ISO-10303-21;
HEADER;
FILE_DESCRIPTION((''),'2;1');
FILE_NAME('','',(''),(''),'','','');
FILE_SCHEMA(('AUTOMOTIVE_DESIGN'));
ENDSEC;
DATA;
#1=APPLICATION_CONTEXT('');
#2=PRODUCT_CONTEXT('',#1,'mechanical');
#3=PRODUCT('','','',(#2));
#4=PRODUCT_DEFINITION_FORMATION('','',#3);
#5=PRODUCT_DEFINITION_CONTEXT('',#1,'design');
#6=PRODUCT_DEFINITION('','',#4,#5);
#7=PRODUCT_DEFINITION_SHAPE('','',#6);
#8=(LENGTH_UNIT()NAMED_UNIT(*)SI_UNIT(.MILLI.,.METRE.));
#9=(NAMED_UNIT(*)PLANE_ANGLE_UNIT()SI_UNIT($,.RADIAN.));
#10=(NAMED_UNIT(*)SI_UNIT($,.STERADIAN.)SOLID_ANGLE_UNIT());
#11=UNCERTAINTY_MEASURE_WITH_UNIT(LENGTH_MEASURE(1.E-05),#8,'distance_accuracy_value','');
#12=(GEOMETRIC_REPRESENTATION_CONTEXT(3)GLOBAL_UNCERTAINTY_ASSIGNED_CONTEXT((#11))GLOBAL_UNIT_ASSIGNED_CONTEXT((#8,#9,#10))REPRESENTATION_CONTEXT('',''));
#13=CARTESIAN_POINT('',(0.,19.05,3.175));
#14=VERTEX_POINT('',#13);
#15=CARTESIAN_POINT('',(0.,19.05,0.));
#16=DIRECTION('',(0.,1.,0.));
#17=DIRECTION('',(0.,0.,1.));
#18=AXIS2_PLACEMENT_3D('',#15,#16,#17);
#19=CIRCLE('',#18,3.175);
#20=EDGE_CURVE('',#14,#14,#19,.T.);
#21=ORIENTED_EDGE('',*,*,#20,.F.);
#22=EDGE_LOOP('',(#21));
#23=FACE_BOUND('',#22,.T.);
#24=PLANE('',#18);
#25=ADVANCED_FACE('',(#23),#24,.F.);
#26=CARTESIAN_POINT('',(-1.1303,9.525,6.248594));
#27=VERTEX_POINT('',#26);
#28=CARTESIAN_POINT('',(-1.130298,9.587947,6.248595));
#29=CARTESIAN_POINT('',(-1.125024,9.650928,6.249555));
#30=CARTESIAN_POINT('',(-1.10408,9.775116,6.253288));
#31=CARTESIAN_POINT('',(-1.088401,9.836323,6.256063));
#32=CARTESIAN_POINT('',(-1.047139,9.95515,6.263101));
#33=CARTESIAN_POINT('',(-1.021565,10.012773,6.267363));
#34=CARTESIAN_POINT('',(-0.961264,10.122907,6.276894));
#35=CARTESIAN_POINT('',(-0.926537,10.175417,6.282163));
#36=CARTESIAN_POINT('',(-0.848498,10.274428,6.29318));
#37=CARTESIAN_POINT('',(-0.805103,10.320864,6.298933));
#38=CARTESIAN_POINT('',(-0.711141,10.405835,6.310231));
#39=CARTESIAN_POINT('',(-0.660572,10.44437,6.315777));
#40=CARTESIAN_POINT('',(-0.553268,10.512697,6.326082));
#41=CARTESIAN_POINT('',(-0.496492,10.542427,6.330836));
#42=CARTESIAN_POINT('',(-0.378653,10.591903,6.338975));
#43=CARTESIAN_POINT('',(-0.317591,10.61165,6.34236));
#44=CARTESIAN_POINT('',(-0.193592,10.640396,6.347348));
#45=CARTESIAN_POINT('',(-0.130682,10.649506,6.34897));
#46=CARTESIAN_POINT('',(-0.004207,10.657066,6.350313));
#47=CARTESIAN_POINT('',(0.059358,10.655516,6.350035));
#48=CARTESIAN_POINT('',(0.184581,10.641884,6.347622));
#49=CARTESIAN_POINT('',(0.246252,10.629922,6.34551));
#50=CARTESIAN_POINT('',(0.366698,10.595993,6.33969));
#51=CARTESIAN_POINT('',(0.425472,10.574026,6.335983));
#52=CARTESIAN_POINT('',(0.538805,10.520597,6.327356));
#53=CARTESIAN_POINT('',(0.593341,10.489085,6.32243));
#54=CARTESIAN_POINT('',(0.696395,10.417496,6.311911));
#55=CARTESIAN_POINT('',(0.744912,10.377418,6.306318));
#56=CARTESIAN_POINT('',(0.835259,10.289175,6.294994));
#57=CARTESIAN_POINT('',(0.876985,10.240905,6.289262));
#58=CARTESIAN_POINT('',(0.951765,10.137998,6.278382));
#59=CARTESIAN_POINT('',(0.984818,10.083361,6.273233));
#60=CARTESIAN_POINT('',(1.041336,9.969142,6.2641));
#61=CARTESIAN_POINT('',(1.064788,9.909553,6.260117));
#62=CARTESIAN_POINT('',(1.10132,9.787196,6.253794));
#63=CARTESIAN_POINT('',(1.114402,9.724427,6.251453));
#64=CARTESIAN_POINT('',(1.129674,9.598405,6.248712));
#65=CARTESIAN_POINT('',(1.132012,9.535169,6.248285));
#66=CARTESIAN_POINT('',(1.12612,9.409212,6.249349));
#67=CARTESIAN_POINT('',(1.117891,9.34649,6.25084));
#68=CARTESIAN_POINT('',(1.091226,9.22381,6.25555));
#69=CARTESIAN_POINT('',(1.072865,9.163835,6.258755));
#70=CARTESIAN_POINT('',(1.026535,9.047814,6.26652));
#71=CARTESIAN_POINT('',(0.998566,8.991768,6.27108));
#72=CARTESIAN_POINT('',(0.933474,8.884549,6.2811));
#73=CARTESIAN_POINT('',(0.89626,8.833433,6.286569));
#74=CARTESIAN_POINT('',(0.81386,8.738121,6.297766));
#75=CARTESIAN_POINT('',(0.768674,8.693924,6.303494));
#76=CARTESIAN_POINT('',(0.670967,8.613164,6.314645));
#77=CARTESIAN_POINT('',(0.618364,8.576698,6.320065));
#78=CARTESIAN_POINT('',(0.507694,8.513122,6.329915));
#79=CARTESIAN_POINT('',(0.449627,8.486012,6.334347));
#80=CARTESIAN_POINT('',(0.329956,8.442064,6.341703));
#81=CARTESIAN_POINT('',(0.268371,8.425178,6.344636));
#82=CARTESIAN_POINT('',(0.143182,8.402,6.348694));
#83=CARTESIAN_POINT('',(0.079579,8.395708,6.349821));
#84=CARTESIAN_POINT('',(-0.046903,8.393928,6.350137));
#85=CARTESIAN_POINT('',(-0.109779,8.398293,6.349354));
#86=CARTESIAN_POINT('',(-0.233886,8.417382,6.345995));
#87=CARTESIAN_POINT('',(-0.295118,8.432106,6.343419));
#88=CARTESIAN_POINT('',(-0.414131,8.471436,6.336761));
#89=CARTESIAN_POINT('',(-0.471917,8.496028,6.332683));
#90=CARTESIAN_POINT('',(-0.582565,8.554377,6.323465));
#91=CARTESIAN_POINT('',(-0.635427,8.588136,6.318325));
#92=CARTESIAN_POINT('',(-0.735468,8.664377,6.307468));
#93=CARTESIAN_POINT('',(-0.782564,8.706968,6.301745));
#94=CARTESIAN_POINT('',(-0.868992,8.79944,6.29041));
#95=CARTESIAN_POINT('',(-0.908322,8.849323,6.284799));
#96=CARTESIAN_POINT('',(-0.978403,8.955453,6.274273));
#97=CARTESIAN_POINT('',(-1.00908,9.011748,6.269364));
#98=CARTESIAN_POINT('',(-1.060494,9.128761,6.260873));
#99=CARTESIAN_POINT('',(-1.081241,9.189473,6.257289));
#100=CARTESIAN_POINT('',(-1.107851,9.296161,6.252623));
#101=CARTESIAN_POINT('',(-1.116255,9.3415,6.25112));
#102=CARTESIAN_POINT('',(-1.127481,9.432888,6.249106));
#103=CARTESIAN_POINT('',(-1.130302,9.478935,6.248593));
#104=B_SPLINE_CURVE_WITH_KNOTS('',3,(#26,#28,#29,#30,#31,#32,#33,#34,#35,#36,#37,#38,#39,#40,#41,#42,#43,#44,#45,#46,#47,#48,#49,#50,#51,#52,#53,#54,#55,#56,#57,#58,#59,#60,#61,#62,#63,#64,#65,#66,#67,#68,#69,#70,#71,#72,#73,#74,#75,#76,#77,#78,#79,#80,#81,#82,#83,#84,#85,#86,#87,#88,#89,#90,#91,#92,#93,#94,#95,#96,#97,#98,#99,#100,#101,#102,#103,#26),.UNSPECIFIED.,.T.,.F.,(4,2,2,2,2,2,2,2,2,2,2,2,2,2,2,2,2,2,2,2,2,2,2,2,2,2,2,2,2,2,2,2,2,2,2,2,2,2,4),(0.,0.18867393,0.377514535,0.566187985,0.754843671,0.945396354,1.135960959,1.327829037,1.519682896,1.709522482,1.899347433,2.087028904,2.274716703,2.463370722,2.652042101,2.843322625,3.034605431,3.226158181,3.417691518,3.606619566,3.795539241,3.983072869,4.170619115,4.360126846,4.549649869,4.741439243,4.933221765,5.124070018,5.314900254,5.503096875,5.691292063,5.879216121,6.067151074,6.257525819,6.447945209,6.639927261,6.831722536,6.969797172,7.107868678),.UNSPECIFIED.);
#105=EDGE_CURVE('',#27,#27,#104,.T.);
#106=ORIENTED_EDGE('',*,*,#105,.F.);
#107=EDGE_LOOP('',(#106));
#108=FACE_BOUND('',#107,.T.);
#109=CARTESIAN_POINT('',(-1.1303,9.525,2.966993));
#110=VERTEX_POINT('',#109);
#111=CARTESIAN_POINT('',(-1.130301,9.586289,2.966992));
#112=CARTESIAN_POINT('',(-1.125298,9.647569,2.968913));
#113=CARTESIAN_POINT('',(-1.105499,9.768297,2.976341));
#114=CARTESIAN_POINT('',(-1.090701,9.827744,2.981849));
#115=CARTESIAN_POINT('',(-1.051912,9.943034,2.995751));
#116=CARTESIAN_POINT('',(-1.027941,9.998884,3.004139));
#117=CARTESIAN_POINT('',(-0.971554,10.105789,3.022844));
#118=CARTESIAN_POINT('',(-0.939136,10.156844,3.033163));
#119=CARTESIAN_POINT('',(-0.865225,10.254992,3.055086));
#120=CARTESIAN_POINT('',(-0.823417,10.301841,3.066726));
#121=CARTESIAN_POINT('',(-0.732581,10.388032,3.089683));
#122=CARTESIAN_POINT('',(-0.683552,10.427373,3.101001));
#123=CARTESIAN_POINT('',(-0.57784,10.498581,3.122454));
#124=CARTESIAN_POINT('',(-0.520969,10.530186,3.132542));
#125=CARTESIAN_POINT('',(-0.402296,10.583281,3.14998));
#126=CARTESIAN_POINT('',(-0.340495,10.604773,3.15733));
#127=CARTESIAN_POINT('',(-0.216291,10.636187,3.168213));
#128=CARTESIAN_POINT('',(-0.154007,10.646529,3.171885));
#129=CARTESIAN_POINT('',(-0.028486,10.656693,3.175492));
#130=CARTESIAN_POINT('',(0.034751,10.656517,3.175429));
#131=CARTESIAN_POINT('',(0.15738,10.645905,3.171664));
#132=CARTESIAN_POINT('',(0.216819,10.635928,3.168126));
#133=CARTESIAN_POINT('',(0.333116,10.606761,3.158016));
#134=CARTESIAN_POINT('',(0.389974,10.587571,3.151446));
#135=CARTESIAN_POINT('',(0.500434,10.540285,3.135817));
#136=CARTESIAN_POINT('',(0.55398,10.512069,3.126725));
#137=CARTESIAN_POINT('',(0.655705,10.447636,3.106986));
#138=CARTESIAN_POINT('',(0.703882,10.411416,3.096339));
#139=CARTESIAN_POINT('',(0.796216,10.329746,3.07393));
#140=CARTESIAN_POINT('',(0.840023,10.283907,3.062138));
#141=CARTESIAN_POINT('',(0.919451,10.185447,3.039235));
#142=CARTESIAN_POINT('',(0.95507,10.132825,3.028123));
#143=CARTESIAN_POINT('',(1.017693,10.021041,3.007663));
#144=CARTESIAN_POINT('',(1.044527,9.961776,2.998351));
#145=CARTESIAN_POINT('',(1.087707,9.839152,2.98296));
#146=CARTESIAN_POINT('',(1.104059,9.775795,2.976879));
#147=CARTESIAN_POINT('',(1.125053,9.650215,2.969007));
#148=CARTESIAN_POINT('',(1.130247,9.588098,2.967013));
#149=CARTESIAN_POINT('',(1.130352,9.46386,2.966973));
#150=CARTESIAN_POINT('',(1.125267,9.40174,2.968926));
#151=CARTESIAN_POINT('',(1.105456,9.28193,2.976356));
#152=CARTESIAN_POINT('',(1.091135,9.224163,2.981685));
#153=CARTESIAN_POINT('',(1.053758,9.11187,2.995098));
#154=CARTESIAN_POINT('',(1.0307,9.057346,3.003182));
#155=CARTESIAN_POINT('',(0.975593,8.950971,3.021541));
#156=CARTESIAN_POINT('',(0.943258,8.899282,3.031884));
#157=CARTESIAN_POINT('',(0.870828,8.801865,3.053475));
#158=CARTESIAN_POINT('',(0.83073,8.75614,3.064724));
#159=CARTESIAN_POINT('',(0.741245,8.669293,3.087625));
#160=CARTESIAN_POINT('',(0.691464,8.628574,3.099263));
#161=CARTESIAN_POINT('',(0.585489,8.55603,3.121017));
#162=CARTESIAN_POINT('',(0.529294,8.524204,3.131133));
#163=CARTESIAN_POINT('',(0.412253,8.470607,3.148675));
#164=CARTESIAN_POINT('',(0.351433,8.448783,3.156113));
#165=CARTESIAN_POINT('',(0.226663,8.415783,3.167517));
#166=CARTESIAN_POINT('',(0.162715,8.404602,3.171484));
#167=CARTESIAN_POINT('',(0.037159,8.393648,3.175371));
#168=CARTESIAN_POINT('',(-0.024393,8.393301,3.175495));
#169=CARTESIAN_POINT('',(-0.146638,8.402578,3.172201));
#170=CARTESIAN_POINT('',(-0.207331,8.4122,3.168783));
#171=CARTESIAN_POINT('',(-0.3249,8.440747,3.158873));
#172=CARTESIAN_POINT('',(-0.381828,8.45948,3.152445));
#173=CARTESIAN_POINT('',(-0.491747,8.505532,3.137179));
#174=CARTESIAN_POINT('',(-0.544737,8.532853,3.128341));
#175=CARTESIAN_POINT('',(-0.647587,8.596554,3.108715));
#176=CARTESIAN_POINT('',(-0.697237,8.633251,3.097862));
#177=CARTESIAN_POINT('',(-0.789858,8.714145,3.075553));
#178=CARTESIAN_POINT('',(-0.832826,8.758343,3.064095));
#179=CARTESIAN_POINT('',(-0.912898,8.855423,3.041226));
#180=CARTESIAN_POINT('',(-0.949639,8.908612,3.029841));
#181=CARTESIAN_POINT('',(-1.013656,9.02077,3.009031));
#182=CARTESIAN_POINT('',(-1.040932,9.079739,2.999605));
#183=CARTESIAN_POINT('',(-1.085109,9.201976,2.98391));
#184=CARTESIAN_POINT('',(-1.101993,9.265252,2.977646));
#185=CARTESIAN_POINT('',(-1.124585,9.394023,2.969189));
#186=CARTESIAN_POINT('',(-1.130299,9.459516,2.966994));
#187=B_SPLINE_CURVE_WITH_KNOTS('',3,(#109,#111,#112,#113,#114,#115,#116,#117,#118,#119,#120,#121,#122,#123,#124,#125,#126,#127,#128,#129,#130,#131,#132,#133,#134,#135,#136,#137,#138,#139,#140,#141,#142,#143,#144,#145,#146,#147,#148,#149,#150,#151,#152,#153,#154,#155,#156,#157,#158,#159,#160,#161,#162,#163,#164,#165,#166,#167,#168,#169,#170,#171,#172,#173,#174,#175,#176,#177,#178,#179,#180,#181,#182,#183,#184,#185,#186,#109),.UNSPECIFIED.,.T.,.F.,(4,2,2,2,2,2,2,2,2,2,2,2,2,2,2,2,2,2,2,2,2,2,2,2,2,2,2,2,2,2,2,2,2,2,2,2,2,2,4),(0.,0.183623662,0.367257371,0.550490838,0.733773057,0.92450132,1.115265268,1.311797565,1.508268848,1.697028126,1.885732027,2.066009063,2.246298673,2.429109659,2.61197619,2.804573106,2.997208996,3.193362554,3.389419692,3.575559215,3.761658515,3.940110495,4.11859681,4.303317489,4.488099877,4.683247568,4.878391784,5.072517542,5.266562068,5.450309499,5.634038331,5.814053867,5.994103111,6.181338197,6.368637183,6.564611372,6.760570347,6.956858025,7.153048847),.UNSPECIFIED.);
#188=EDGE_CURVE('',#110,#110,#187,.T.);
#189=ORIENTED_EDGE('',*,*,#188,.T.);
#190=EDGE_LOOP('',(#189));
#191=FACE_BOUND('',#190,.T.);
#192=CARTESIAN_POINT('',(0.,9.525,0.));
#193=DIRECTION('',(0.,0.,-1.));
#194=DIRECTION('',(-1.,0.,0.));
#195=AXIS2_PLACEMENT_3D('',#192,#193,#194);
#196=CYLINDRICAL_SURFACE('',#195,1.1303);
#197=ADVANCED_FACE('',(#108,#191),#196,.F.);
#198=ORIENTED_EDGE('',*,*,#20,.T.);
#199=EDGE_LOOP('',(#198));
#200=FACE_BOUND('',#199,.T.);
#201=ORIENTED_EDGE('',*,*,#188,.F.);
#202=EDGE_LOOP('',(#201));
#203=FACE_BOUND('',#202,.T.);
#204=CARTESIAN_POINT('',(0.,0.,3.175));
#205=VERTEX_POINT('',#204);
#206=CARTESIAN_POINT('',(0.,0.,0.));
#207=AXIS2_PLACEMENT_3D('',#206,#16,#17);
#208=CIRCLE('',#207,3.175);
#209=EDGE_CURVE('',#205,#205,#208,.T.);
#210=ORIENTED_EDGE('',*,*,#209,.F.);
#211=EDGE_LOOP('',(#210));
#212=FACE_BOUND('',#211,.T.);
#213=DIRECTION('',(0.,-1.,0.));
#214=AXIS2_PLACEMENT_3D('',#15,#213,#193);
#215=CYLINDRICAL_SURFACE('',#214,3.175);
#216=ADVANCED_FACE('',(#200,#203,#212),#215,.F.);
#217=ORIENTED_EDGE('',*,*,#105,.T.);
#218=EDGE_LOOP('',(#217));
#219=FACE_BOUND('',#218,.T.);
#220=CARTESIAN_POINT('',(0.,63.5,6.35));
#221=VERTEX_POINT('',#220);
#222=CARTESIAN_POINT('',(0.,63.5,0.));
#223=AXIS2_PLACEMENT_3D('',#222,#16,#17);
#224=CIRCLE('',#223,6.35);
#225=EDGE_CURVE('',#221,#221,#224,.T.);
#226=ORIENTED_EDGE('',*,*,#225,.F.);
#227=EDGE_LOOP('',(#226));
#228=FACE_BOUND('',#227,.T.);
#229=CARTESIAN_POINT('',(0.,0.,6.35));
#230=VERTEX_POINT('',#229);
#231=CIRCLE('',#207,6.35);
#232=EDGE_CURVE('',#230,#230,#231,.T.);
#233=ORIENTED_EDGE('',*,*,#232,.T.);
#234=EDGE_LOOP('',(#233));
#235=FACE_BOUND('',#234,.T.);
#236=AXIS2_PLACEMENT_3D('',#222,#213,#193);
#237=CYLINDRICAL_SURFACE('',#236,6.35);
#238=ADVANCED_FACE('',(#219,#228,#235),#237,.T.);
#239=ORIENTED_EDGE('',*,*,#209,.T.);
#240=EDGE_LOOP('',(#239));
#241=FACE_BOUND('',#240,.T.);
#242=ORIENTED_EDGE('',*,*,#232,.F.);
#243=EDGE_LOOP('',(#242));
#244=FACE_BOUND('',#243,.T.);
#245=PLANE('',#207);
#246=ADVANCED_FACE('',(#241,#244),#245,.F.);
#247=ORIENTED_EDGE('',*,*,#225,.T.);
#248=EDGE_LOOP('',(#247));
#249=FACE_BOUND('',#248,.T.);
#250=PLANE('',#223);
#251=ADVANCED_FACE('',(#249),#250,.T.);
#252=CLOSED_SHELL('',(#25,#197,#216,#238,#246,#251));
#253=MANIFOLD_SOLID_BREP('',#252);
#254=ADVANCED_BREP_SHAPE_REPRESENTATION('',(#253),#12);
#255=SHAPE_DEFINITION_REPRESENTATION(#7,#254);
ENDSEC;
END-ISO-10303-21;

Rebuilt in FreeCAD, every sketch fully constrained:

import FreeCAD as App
import Part
import Sketcher
from FreeCAD import Vector
Q = App.Units.Quantity


def add_polygon(sketch, points):
    """Adds a closed chain of lines whose ends are joined by coincident constraints."""
    first, n = sketch.GeometryCount, len(points)
    for a, b in zip(points, points[1:] + points[:1]):
        sketch.addGeometry(Part.LineSegment(App.Vector(*a, 0), App.Vector(*b, 0)), False)
    for i in range(n):
        sketch.addConstraint(Sketcher.Constraint("Coincident", first + i, 2, first + (i + 1) % n, 1))

doc = App.newDocument("Part")
body = doc.addObject("PartDesign::Body", "Body")

sketch1 = body.newObject("Sketcher::SketchObject", "Sketch")
sketch1.AttachmentSupport = (doc.getObject("XZ_Plane"), [""])
sketch1.MapMode = "FlatFace"
sketch1.addGeometry(Part.Circle(Vector(0, 0, 0), Vector(0, 0, 1), 6), False)
sketch1.addConstraint(Sketcher.Constraint("Coincident", 0, 3, -1, 1))
sketch1.addConstraint(Sketcher.Constraint("Diameter", 0, Q("0.5 in")))
pad1 = body.newObject("PartDesign::Pad", "Pad")
pad1.Profile = sketch1
pad1.Length = Q("2.5 in")
pad1.Reversed = True

sketch2 = body.newObject("Sketcher::SketchObject", "Sketch001")
sketch2.AttachmentSupport = (doc.getObject("XZ_Plane"), [""])
sketch2.MapMode = "FlatFace"
sketch2.addGeometry(Part.Circle(Vector(0, 0, 0), Vector(0, 0, 1), 3.2), False)
sketch2.addConstraint(Sketcher.Constraint("Coincident", 0, 3, -1, 1))
sketch2.addConstraint(Sketcher.Constraint("Diameter", 0, Q("0.25 in")))
pocket1 = body.newObject("PartDesign::Pocket", "Pocket")
pocket1.Profile = sketch2
pocket1.Length = Q("0.75 in")

sketch3 = body.newObject("Sketcher::SketchObject", "Sketch002")
sketch3.AttachmentSupport = (doc.getObject("YZ_Plane"), [""])
sketch3.MapMode = "FlatFace"
add_polygon(sketch3, [(9.5, 6.3), (9.5, 0), (10.7, 0), (10.7, 6.3)])
sketch3.addGeometry(Part.LineSegment(Vector(9.5, 0, 0), Vector(9.5, 6.3, 0)), True)
sketch3.addConstraint(Sketcher.Constraint("Vertical", 0))
sketch3.addConstraint(Sketcher.Constraint("Horizontal", 1))
sketch3.addConstraint(Sketcher.Constraint("Vertical", 2))
sketch3.addConstraint(Sketcher.Constraint("Horizontal", 3))
sketch3.addConstraint(Sketcher.Constraint("Vertical", 4))
sketch3.addConstraint(Sketcher.Constraint("Coincident", 4, 1, 0, 2))
sketch3.addConstraint(Sketcher.Constraint("PointOnObject", 0, 2, -1))
sketch3.addConstraint(Sketcher.Constraint("Horizontal", 2, 2, 4, 2))
sketch3.addConstraint(Sketcher.Constraint("DistanceY", 0, 2, 0, 1, Q("0.25 in")))
sketch3.addConstraint(Sketcher.Constraint("DistanceX", 1, 1, 1, 2, Q("0.0445 in")))
sketch3.addConstraint(Sketcher.Constraint("DistanceX", -1, 1, 0, 2, Q("0.375 in")))
groove = body.newObject("PartDesign::Groove", "Groove")
groove.Profile = sketch3
groove.ReferenceAxis = (sketch3, ["Axis0"])
groove.Angle = 360

doc.recompute()
